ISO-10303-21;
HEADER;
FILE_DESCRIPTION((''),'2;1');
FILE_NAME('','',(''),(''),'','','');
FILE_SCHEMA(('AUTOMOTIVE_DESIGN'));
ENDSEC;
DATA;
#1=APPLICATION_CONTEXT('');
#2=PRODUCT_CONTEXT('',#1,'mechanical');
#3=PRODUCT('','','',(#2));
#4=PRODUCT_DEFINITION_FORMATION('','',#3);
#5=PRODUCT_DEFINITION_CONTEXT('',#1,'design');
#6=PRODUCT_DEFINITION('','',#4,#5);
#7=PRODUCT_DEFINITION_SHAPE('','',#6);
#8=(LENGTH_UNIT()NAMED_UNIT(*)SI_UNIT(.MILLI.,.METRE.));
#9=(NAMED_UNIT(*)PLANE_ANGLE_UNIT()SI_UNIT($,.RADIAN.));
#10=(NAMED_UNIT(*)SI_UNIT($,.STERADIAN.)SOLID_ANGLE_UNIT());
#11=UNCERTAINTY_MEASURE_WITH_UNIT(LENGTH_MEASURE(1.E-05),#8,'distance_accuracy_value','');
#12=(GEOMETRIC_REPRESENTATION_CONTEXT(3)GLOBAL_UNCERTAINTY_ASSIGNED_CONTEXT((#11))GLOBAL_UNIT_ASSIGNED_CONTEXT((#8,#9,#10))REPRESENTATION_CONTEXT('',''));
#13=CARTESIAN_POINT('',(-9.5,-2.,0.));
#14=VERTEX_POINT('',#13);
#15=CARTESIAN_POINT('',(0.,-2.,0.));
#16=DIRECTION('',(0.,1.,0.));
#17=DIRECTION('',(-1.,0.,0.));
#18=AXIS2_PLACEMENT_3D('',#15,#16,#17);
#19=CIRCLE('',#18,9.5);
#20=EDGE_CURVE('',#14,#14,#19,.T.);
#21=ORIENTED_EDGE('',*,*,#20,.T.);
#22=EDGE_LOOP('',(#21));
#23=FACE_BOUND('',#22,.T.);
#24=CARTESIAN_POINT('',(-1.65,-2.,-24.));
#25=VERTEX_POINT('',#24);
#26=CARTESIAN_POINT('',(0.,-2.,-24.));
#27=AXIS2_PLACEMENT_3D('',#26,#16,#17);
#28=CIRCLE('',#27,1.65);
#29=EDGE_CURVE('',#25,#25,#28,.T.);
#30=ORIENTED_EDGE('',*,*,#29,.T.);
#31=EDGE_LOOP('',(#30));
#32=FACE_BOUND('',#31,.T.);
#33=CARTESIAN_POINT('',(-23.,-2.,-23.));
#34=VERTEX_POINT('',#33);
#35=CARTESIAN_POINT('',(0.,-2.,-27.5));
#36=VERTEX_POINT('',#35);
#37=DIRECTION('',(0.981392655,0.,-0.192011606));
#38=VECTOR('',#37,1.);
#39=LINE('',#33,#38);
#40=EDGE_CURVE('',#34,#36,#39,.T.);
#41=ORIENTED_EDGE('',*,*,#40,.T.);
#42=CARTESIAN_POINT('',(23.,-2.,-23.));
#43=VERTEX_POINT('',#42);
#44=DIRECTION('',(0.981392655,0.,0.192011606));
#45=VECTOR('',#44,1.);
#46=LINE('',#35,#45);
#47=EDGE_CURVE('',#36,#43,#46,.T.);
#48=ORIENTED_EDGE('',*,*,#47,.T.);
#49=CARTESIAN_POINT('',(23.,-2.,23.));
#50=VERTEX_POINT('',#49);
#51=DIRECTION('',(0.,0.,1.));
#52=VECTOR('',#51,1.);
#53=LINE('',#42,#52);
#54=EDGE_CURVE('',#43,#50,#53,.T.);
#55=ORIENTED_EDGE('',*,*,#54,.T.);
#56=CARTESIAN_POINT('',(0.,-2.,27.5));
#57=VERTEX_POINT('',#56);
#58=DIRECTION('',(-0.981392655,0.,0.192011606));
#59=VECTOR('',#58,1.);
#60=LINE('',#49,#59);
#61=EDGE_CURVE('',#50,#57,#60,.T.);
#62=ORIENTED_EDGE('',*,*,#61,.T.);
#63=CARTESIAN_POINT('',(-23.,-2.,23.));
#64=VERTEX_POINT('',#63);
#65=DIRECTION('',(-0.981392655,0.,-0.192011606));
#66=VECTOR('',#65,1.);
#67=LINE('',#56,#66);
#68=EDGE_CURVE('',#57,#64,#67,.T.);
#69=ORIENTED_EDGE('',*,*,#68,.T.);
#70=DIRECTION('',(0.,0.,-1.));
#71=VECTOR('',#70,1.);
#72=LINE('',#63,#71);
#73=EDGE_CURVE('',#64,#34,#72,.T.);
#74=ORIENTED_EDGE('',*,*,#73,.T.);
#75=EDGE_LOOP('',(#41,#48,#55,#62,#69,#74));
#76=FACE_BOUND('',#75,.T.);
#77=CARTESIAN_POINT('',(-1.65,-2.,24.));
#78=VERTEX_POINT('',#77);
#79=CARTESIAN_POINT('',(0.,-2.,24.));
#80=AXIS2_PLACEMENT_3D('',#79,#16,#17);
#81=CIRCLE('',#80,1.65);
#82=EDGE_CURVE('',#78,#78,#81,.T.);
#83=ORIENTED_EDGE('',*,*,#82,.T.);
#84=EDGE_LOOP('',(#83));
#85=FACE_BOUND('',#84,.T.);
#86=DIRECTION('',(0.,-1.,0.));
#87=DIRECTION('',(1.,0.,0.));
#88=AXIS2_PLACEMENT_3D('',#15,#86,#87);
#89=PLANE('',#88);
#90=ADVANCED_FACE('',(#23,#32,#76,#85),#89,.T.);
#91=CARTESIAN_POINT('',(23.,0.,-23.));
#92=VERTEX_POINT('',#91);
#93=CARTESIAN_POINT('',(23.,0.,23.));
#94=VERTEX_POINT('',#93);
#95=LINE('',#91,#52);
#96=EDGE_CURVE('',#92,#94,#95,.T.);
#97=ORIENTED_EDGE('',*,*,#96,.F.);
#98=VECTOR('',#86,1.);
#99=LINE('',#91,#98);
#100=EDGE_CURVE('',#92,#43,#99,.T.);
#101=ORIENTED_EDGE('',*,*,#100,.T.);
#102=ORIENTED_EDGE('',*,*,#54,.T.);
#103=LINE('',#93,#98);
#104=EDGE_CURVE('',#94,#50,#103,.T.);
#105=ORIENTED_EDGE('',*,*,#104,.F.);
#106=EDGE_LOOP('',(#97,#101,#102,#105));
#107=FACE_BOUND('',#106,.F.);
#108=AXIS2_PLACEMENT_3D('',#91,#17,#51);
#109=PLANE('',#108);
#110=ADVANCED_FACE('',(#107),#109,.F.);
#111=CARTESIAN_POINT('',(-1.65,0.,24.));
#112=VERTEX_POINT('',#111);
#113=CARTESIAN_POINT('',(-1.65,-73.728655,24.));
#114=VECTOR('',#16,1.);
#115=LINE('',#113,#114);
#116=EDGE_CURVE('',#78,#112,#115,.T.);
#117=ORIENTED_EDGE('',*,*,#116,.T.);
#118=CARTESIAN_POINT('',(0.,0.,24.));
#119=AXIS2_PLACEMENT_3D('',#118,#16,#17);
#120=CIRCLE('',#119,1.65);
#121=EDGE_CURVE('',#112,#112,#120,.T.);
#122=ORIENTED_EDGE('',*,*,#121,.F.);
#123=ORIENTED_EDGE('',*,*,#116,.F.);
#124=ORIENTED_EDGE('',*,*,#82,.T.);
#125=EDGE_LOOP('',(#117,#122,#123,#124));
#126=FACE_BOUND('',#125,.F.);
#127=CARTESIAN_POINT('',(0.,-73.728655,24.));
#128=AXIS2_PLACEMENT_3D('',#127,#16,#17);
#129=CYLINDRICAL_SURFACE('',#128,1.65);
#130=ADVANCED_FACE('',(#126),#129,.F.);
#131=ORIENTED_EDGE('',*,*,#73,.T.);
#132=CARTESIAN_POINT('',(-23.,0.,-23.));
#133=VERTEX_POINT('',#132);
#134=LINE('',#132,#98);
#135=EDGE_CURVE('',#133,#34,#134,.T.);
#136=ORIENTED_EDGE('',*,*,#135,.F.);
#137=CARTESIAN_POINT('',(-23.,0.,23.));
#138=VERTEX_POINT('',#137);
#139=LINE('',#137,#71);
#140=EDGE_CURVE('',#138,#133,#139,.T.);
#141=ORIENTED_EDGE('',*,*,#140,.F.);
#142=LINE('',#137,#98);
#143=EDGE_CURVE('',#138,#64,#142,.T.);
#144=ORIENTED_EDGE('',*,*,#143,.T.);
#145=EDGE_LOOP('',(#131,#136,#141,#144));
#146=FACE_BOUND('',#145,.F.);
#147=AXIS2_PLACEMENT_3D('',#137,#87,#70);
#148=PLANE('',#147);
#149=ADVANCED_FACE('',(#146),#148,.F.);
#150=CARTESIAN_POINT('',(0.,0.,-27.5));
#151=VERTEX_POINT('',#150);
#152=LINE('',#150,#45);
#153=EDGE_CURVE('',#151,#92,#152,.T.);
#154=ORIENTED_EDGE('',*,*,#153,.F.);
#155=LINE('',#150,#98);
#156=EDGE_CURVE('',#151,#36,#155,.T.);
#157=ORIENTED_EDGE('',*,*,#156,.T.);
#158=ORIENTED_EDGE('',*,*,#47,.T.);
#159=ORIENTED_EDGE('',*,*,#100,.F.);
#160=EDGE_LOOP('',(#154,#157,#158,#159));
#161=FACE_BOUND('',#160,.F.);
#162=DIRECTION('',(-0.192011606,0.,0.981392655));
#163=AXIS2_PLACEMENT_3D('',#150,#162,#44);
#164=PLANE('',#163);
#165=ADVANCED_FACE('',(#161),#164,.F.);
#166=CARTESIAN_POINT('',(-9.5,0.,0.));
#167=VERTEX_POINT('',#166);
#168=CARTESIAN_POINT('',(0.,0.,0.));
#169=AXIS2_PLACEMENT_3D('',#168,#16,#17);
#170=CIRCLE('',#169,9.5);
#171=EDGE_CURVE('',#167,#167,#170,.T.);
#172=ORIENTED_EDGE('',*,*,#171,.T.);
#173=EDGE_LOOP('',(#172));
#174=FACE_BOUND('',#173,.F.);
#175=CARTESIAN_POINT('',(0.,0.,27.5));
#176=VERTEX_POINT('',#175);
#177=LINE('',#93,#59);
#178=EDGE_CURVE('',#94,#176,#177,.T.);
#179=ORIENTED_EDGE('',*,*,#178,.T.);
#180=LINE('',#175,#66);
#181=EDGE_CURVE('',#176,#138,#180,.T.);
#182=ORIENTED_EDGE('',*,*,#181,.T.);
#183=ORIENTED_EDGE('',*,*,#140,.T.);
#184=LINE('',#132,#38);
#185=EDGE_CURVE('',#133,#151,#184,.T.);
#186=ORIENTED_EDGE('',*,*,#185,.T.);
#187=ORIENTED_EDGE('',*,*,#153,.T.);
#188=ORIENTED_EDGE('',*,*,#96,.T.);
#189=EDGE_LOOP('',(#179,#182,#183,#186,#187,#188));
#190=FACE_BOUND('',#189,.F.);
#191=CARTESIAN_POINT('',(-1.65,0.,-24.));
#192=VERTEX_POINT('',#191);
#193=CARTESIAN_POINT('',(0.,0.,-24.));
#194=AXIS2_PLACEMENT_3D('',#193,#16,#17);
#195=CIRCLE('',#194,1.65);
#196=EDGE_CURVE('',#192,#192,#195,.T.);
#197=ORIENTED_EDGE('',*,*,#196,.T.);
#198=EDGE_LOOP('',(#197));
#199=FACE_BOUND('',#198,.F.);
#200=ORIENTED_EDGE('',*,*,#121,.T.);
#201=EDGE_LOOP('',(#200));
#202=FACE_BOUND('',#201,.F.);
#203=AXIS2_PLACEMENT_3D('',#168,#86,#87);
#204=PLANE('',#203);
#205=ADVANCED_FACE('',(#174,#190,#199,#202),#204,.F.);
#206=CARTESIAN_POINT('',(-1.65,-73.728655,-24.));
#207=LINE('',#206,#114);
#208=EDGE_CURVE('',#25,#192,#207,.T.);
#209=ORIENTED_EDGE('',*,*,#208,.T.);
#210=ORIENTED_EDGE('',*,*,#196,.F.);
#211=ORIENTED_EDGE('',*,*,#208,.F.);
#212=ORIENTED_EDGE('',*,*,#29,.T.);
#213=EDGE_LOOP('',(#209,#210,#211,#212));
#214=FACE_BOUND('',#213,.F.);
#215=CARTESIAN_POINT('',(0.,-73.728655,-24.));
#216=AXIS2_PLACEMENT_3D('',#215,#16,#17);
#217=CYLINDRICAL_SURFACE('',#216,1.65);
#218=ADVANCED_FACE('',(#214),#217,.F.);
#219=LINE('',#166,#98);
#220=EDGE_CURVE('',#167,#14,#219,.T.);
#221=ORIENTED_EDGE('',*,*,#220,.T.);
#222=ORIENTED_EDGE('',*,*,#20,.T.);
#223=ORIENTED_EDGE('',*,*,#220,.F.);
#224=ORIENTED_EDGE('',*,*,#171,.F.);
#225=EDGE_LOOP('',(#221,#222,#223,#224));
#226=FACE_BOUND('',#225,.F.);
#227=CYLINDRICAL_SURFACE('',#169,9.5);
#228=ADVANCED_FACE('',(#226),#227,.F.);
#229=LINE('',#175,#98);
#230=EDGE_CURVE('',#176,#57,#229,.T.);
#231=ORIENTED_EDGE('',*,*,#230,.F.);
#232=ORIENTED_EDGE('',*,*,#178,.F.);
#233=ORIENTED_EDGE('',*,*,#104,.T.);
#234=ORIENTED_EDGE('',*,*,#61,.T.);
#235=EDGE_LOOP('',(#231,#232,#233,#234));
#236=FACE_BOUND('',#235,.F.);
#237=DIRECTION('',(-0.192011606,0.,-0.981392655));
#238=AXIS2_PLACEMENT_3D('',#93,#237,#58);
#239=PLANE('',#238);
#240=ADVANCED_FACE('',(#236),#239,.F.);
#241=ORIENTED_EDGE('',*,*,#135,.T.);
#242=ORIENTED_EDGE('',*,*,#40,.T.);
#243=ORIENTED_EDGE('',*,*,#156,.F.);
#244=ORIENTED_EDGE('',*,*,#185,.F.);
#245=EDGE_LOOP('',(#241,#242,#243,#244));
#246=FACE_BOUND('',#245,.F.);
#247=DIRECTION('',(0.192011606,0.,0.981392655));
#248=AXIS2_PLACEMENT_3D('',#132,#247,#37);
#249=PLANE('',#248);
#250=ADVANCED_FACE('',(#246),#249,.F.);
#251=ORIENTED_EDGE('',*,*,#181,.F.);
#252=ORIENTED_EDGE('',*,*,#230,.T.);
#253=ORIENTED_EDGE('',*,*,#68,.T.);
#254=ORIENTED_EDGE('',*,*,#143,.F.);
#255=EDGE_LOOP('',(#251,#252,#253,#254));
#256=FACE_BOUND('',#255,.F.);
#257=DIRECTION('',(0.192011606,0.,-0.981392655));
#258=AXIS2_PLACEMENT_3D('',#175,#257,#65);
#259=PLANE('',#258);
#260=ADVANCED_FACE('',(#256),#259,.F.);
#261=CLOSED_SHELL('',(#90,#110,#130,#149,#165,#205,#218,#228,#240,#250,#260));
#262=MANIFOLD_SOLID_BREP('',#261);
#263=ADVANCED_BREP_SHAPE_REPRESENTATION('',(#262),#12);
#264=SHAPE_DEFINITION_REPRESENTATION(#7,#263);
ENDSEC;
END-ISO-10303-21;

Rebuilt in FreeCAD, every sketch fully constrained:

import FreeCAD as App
import Part
import Sketcher
Q = App.Units.Quantity

doc = App.newDocument("Part")
body = doc.addObject("PartDesign::Body", "Body")

# Sketch on XZ plane
sketch1 = body.newObject("Sketcher::SketchObject", "Sketch")
sketch1.AttachmentSupport = (doc.getObject("XZ_Plane"), [""])
sketch1.MapMode = "FlatFace"
sketch1.addGeometry([
    Part.LineSegment(App.Vector(-23, 23, 0), App.Vector(-23, -23, 0)),  # 0
    Part.LineSegment(App.Vector(-23, -23, 0), App.Vector(0, -28, 0)),  # 1
    Part.LineSegment(App.Vector(0, -28, 0), App.Vector(23, -23, 0)),  # 2
    Part.LineSegment(App.Vector(23, -23, 0), App.Vector(23, 23, 0)),  # 3
    Part.LineSegment(App.Vector(23, 23, 0), App.Vector(0, 28, 0)),  # 4
    Part.LineSegment(App.Vector(0, 28, 0), App.Vector(-23, 23, 0)),  # 5
], False)
sketch1.addConstraint([
    Sketcher.Constraint("Coincident", 0, 2, 1, 1),
    Sketcher.Constraint("Coincident", 1, 2, 2, 1),
    Sketcher.Constraint("Coincident", 2, 2, 3, 1),
    Sketcher.Constraint("Coincident", 3, 2, 4, 1),
    Sketcher.Constraint("Coincident", 4, 2, 5, 1),
    Sketcher.Constraint("Coincident", 5, 2, 0, 1),
    Sketcher.Constraint("Vertical", 0),
    Sketcher.Constraint("Vertical", 3),
    Sketcher.Constraint("Symmetric", 0, 2, 3, 2, -1, 1),
    Sketcher.Constraint("Symmetric", 1, 2, 4, 2, -1, 1),
    Sketcher.Constraint("PointOnObject", 1, 2, -2),
    Sketcher.Constraint("Parallel", 2, 5),
    Sketcher.Constraint("Horizontal", 0, 2, 2, 2),
    Sketcher.Constraint("DistanceY", 0, 2, 0, 1, Q("46 mm")),
    Sketcher.Constraint("DistanceX", 0, 2, -1, 1, Q("23 mm")),
    Sketcher.Constraint("DistanceY", 1, 2, 4, 2, Q("55 mm")),
])
pad1 = body.newObject("PartDesign::Pad", "Pad")
pad1.Profile = sketch1
pad1.Length = 2

# Sketch on XZ plane
sketch2 = body.newObject("Sketcher::SketchObject", "Sketch001")
sketch2.AttachmentSupport = (doc.getObject("XZ_Plane"), [""])
sketch2.MapMode = "FlatFace"
sketch2.addGeometry(Part.Circle(App.Vector(0, 0, 0), App.Vector(0, 0, 1), 10), False)
sketch2.addConstraint([
    Sketcher.Constraint("Coincident", 0, 3, -1, 1),
    Sketcher.Constraint("Diameter", 0, Q("19 mm")),
])
pocket1 = body.newObject("PartDesign::Pocket", "Pocket")
pocket1.Profile = sketch2
pocket1.Length = 25
pocket1.Reversed = True

# Sketch on XZ plane
sketch3 = body.newObject("Sketcher::SketchObject", "Sketch002")
sketch3.AttachmentSupport = (doc.getObject("XZ_Plane"), [""])
sketch3.MapMode = "FlatFace"
sketch3.AttachmentOffset = App.Placement(App.Vector(0, 0, 2), App.Rotation())
sketch3.addGeometry([
    Part.Circle(App.Vector(0, -24, 0), App.Vector(0, 0, 1), 1.6),
    Part.Circle(App.Vector(0, 24, 0), App.Vector(0, 0, 1), 1.6),
], False)
sketch3.addConstraint([
    Sketcher.Constraint("Equal", 0, 1),
    Sketcher.Constraint("Symmetric", 0, 3, 1, 3, -1, 1),
    Sketcher.Constraint("PointOnObject", 0, 3, -2),
    Sketcher.Constraint("Diameter", 0, Q("3.3 mm")),
    Sketcher.Constraint("DistanceY", 0, 3, -1, 1, Q("24 mm")),
])
doc.recompute()
hole = body.newObject("PartDesign::Hole", "Hole")
hole.Profile = sketch3
hole.ThreadType = "None"
hole.Diameter = 3.3
hole.DepthType = "ThroughAll"

doc.recompute()
